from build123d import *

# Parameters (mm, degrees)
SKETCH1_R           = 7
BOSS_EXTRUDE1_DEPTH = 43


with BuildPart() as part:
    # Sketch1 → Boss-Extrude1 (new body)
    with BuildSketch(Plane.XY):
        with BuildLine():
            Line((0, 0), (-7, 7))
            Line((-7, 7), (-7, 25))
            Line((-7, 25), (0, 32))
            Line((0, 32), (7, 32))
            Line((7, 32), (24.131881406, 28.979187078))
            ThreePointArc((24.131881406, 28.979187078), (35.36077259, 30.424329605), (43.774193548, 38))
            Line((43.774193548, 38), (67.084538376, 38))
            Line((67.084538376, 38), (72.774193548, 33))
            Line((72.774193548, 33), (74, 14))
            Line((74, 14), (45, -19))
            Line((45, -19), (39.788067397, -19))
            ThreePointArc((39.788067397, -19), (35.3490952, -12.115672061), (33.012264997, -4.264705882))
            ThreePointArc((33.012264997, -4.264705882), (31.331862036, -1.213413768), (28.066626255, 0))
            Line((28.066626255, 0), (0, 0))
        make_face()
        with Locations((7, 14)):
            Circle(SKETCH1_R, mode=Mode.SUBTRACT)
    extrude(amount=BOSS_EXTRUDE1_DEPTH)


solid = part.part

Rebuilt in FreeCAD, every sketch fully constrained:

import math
import FreeCAD as App
import Part
import Sketcher
Q = App.Units.Quantity

doc = App.newDocument("Part")
body = doc.addObject("PartDesign::Body", "Body")

sketch1 = body.newObject("Sketcher::SketchObject", "Sketch")
sketch1.AttachmentSupport = (doc.getObject("XY_Plane"), [""])
sketch1.MapMode = "FlatFace"
sketch1.addGeometry([
    Part.LineSegment(App.Vector(-7, 7, 0), App.Vector(0, 0, 0)),
    Part.LineSegment(App.Vector(0, 0, 0), App.Vector(28, 0, 0)),
    Part.ArcOfCircle(Part.Circle(App.Vector(28, -5, 0), App.Vector(0, 0, 1), 5), math.radians(8), math.radians(90)),
    Part.ArcOfCircle(Part.Circle(App.Vector(62, 0, 0), App.Vector(0, 0, 1), 29), math.radians(-172), math.radians(-139)),
    Part.LineSegment(App.Vector(40, -19, 0), App.Vector(45, -19, 0)),
    Part.LineSegment(App.Vector(45, -19, 0), App.Vector(74, 14, 0)),
    Part.LineSegment(App.Vector(74, 14, 0), App.Vector(73, 33, 0)),
    Part.LineSegment(App.Vector(73, 33, 0), App.Vector(67, 38, 0)),
    Part.LineSegment(App.Vector(67, 38, 0), App.Vector(44, 38, 0)),
    Part.ArcOfCircle(Part.Circle(App.Vector(27, 48, 0), App.Vector(0, 0, 1), 19), math.radians(-100), math.radians(-31)),
    Part.LineSegment(App.Vector(24, 29, 0), App.Vector(7, 32, 0)),
    Part.LineSegment(App.Vector(7, 32, 0), App.Vector(0, 32, 0)),
    Part.LineSegment(App.Vector(0, 32, 0), App.Vector(-7, 25, 0)),
    Part.LineSegment(App.Vector(-7, 25, 0), App.Vector(-7, 7, 0)),
    Part.Circle(App.Vector(7, 14, 0), App.Vector(0, 0, 1), 7),
], False)
sketch1.addConstraint([
    Sketcher.Constraint("Coincident", 0, 2, 1, 1),
    Sketcher.Constraint("Tangent", 1, 2, 2, 2),
    Sketcher.Constraint("Tangent", 2, 1, 3, 1),
    Sketcher.Constraint("Coincident", 3, 2, 4, 1),
    Sketcher.Constraint("Coincident", 4, 2, 5, 1),
    Sketcher.Constraint("Coincident", 5, 2, 6, 1),
    Sketcher.Constraint("Coincident", 6, 2, 7, 1),
    Sketcher.Constraint("Coincident", 7, 2, 8, 1),
    Sketcher.Constraint("Coincident", 8, 2, 9, 2),
    Sketcher.Constraint("Tangent", 9, 1, 10, 1),
    Sketcher.Constraint("Coincident", 10, 2, 11, 1),
    Sketcher.Constraint("Coincident", 11, 2, 12, 1),
    Sketcher.Constraint("Coincident", 12, 2, 13, 1),
    Sketcher.Constraint("Coincident", 13, 2, 0, 1),
    Sketcher.Constraint("Horizontal", 1),
    Sketcher.Constraint("Horizontal", 4),
    Sketcher.Constraint("Horizontal", 8),
    Sketcher.Constraint("Horizontal", 11),
    Sketcher.Constraint("Vertical", 13),
    Sketcher.Constraint("Coincident", 0, 2, -1, 1),
    Sketcher.Constraint("PointOnObject", 3, 3, -1),
    Sketcher.Constraint("PointOnObject", 11, 2, -2),
    Sketcher.Constraint("Perpendicular", 5, 7),
    Sketcher.Constraint("Perpendicular", 0, 12),
    Sketcher.Constraint("Horizontal", 14, 3, 5, 2),
    Sketcher.Constraint("Vertical", 14, 3, 10, 2),
    Sketcher.Constraint("Equal", 0, 12),
    Sketcher.Constraint("Diameter", 14, 14.0),
    Sketcher.Constraint("Radius", 2, 5.0),
    Sketcher.Constraint("Radius", 3, 29.0),
    Sketcher.Constraint("Radius", 9, 19.0),
    Sketcher.Constraint("DistanceX", 11, 2, 11, 1, 7.0),
    Sketcher.Constraint("DistanceY", 13, 2, 13, 1, 18.0),
    Sketcher.Constraint("Angle", 10, Q("170 deg")),
    Sketcher.Constraint("DistanceY", -1, 1, 14, 3, 14.0),
    Sketcher.Constraint("DistanceY", 3, 2, -1, 1, 19.0),
    Sketcher.Constraint("DistanceX", -1, 1, 4, 2, 45.0),
    Sketcher.Constraint("DistanceX", -1, 1, 5, 2, 74.0),
    Sketcher.Constraint("DistanceY", -1, 1, 6, 2, 33.0),
    Sketcher.Constraint("DistanceY", -1, 1, 7, 2, 38.0),
    Sketcher.Constraint("DistanceY", -1, 1, 10, 2, 32.0),
    Sketcher.Constraint("DistanceX", 8, 2, 6, 2, 29.0),
    Sketcher.Constraint("Distance", 6, 19.039501),
    Sketcher.Constraint("DistanceX", 1, 1, 1, 2, 28.066626),
])
pad1 = body.newObject("PartDesign::Pad", "Pad")
pad1.Profile = sketch1
pad1.Length = 43

doc.recompute()
